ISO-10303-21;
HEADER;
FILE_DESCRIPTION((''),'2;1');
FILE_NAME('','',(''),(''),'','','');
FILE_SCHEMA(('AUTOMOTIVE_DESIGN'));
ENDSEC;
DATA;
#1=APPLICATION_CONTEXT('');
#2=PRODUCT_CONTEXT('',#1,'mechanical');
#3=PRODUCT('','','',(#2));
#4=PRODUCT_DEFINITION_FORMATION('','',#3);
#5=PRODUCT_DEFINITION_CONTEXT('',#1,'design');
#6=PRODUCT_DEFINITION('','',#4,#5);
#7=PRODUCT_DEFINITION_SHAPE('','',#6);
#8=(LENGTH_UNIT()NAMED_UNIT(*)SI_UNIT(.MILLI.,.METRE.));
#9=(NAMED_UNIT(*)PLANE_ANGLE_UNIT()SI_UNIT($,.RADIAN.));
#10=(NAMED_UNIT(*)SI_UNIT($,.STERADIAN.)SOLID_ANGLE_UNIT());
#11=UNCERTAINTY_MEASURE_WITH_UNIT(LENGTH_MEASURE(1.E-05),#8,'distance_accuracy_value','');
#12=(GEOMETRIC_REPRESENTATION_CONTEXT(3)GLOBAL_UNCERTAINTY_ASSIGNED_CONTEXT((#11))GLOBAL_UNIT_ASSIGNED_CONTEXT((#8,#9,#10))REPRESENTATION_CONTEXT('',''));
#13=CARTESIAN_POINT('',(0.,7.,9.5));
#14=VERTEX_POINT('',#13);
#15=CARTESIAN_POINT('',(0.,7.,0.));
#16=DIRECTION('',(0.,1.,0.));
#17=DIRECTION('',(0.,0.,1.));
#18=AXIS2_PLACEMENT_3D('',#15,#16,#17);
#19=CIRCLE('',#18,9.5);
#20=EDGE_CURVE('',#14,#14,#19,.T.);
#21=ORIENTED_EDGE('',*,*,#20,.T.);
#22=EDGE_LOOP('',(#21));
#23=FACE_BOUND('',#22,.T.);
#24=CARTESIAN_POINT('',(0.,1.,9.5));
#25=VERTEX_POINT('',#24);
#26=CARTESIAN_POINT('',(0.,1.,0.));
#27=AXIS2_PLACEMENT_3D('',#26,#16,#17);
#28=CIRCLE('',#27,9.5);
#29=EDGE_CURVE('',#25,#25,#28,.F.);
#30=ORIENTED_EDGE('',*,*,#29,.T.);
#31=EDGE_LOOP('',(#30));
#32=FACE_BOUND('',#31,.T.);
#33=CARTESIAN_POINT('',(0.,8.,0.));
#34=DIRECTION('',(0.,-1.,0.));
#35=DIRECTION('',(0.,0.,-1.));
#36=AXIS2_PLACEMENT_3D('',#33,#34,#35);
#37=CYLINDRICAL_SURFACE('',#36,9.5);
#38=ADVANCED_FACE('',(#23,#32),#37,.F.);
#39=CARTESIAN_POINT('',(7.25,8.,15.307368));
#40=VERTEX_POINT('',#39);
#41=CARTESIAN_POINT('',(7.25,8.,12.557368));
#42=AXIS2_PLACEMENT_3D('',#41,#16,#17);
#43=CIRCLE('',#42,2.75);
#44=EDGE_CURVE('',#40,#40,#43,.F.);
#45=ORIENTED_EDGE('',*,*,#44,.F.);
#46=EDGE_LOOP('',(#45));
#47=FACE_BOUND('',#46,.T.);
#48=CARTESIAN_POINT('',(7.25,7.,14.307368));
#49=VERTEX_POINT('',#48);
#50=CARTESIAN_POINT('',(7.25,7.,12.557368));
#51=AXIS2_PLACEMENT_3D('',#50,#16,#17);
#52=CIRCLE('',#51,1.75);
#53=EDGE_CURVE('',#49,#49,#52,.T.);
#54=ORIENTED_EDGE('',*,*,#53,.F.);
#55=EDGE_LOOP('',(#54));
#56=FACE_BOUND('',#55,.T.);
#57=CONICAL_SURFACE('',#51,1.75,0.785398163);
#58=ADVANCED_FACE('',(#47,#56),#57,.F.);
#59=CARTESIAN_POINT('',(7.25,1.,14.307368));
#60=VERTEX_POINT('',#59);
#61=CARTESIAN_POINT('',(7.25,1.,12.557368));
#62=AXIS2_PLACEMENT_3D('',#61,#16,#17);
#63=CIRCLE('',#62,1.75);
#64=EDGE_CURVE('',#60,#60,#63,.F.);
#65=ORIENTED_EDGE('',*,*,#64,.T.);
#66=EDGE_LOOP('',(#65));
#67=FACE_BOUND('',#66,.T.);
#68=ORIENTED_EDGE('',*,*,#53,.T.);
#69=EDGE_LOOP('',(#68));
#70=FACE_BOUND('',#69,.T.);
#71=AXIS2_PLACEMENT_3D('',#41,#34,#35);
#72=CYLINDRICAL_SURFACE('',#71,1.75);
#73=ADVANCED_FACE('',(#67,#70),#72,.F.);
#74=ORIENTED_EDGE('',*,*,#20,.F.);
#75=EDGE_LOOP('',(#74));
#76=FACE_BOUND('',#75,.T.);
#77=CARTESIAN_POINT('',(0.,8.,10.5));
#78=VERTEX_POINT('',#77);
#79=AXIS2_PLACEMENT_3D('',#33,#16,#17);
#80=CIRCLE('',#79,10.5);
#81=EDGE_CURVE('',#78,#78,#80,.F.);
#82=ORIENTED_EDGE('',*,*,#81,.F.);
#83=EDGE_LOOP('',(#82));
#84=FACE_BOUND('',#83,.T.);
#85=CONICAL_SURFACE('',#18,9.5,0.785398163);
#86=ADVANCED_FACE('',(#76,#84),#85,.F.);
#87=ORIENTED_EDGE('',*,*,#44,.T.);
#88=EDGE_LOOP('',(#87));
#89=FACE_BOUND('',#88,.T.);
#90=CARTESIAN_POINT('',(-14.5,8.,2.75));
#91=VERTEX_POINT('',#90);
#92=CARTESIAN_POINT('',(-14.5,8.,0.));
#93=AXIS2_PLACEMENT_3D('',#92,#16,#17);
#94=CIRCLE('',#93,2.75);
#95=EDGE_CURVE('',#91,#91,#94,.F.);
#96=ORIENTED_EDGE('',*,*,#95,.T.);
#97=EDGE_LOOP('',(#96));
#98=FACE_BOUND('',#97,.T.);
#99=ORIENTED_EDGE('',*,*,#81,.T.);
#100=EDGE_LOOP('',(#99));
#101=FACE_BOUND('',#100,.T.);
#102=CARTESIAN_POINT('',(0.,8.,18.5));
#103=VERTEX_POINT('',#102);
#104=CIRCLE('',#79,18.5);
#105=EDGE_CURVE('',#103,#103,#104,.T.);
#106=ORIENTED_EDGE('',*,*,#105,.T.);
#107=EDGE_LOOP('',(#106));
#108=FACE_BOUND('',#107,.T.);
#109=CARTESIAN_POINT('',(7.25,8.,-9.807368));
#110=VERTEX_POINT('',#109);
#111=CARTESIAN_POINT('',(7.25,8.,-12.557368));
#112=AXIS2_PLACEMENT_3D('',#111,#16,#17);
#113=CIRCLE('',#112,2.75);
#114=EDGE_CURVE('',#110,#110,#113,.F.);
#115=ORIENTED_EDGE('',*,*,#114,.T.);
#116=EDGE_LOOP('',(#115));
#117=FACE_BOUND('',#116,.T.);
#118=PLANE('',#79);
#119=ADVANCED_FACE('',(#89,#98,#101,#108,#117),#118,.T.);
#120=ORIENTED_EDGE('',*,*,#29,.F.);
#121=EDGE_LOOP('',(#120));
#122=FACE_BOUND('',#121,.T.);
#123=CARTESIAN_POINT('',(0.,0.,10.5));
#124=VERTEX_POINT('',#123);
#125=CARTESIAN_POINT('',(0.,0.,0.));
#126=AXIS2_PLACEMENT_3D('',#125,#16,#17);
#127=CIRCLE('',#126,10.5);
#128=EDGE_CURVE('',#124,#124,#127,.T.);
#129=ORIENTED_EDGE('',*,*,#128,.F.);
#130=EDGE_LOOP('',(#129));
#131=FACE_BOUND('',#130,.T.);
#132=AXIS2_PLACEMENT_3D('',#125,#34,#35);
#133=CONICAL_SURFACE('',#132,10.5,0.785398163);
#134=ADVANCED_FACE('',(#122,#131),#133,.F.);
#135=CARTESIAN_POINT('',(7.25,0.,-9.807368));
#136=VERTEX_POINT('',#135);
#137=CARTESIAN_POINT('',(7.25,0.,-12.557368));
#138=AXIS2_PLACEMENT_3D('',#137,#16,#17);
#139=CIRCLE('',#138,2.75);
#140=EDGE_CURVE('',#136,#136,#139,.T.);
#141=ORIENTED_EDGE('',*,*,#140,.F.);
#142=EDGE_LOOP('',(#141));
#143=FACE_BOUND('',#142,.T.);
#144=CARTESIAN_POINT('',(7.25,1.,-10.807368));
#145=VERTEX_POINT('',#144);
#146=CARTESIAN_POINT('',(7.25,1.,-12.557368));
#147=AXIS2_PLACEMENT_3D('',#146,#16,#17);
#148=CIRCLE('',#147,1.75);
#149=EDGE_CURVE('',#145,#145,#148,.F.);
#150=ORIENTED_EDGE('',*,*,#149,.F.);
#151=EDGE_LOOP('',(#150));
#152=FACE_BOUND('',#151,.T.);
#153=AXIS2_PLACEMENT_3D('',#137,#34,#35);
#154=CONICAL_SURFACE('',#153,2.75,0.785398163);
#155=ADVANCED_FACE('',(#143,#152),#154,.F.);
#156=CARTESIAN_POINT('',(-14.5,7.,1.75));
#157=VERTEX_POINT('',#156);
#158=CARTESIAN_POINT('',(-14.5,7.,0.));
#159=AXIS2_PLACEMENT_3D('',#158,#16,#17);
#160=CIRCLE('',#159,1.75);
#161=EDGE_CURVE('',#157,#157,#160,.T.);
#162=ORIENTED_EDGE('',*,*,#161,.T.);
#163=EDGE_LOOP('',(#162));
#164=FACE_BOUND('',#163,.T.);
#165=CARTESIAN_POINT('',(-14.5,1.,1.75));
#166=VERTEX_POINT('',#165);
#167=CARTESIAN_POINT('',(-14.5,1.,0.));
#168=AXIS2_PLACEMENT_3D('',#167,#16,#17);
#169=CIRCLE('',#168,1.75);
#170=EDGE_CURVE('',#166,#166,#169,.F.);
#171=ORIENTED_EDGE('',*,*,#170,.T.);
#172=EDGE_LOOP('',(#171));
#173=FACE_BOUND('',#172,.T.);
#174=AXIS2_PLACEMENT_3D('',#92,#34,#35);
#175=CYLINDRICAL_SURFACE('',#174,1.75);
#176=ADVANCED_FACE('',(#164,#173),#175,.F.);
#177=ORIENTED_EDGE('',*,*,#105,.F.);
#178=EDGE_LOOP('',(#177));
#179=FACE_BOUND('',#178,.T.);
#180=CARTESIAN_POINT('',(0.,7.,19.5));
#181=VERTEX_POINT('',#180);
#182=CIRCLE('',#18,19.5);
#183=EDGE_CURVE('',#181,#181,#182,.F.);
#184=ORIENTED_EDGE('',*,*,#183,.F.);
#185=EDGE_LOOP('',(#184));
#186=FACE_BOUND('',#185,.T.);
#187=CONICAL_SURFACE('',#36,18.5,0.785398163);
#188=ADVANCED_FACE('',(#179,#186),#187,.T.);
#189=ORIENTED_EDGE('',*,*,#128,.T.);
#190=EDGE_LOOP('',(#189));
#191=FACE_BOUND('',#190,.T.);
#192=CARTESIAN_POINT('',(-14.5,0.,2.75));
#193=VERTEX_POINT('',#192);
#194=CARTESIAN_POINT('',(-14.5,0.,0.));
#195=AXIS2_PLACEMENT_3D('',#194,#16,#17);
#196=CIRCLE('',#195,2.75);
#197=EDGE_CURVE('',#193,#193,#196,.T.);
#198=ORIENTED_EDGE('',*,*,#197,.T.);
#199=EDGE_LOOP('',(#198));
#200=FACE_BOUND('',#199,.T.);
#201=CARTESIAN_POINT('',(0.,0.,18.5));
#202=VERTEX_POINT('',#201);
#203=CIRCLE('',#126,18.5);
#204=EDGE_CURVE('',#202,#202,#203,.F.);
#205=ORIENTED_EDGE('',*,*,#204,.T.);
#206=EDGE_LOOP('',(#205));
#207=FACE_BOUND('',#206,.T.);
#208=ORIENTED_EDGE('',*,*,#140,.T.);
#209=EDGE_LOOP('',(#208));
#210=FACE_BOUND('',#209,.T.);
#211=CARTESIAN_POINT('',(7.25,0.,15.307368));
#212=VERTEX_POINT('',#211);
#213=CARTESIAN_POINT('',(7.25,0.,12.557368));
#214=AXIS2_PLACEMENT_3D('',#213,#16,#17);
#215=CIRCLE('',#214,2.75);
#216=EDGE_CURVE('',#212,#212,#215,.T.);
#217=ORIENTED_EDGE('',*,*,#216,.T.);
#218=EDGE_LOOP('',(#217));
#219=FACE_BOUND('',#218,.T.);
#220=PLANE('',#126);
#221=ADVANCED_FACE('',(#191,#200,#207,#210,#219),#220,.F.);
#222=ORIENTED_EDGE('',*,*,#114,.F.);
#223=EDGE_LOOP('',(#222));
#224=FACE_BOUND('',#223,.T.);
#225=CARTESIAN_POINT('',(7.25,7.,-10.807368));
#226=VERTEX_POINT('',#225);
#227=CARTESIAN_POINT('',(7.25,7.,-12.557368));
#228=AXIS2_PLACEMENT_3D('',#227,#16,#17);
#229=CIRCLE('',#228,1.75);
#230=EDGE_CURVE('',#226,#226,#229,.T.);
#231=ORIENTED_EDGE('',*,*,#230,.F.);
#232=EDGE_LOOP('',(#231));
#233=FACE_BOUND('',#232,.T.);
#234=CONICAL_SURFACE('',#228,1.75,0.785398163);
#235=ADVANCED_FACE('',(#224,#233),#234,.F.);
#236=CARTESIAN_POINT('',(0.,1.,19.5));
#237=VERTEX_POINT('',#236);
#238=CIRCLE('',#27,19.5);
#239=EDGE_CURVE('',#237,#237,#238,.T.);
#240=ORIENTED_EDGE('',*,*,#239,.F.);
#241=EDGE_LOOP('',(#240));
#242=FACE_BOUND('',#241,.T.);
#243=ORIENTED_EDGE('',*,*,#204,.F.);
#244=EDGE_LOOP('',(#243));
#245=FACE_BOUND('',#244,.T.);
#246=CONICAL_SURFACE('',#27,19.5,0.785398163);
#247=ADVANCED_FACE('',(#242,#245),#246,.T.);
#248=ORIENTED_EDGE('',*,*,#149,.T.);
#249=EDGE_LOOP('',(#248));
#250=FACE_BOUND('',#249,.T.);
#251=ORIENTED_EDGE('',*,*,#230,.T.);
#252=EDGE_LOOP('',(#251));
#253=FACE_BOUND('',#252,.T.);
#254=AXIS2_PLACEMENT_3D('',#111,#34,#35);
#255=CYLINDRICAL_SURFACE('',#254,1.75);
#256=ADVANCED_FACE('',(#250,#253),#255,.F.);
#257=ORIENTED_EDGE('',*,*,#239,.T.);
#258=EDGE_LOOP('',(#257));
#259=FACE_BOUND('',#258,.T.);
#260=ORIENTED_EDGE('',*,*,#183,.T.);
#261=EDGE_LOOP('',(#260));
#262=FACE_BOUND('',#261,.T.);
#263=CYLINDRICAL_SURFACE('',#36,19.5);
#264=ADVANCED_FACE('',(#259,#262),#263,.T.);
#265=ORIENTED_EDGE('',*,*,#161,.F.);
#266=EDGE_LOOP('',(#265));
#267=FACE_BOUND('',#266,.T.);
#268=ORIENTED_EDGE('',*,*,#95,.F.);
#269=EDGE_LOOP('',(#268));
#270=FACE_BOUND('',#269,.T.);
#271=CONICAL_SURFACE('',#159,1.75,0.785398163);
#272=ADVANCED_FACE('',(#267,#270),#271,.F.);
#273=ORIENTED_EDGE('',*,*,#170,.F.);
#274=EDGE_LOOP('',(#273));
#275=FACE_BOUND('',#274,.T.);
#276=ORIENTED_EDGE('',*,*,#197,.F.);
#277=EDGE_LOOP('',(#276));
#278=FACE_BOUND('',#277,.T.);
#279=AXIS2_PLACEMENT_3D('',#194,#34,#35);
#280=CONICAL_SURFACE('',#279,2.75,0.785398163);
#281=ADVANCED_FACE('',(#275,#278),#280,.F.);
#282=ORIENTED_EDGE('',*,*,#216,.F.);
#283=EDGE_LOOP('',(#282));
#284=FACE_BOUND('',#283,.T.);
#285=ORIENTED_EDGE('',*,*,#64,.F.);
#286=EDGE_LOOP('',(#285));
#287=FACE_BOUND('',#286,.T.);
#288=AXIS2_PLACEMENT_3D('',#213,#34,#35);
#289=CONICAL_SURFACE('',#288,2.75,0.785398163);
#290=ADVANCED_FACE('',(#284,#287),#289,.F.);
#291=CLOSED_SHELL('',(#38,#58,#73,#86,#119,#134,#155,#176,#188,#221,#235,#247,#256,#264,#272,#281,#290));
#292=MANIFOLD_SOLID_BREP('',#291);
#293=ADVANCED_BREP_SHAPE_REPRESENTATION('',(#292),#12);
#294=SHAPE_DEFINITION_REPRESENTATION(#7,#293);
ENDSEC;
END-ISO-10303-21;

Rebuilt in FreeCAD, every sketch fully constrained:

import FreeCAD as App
import Part
import Sketcher
from FreeCAD import Vector


def edges_at(feature, points):
    """Names of the edges that pass closest to the given points."""
    edges = feature.Shape.Edges
    near = lambda p: min(range(len(edges)), key=lambda i: edges[i].distToShape(Part.Vertex(*p))[0])
    return sorted({f"Edge{near(p) + 1}" for p in points})

doc = App.newDocument("Part")
params = doc.addObject("Spreadsheet::Sheet", "Params")
for row, (alias, value) in enumerate([
    ("sketch1_diameter", "39 mm"),
    ("sketch1_diameter2", "19 mm"),
    ("sketch1_diameter3", "3.5 mm"),
    ("pad1_length", "8 mm"),
    ("chamfer_size", "1 mm"),
], start=1):
    params.set(f"A{row}", alias)
    params.set(f"B{row}", "=" + value)
    params.setAlias(f"B{row}", alias)

body = doc.addObject("PartDesign::Body", "Body")

sketch1 = body.newObject("Sketcher::SketchObject", "Sketch")
sketch1.AttachmentSupport = (doc.getObject("XZ_Plane"), [""])
sketch1.MapMode = "FlatFace"
sketch1.addGeometry(Part.Circle(Vector(0, 0, 0), Vector(0, 0, 1), 19.5), False)
sketch1.addGeometry(Part.Circle(Vector(-14.5, 0, 0), Vector(0, 0, 1), 1.75), False)
sketch1.addGeometry(Part.Circle(Vector(7.25, -12.557368, 0), Vector(0, 0, 1), 1.75), False)
sketch1.addGeometry(Part.Circle(Vector(0, 0, 0), Vector(0, 0, 1), 9.5), False)
sketch1.addGeometry(Part.Circle(Vector(7.25, 12.557368, 0), Vector(0, 0, 1), 1.75), False)
sketch1.addConstraint(Sketcher.Constraint("Coincident", 0, 3, -1, 1))
sketch1.addConstraint(Sketcher.Constraint("Coincident", 3, 3, -1, 1))
sketch1.addConstraint(Sketcher.Constraint("Equal", 1, 2))
sketch1.addConstraint(Sketcher.Constraint("Equal", 2, 4))
sketch1.addConstraint(Sketcher.Constraint("Symmetric", 2, 3, 4, 3, -1))
sketch1.addConstraint(Sketcher.Constraint("PointOnObject", 1, 3, -1))
sketch1.addConstraint(Sketcher.Constraint("Diameter", 0, 39.0))
sketch1.addConstraint(Sketcher.Constraint("Diameter", 3, 19.0))
sketch1.addConstraint(Sketcher.Constraint("Diameter", 1, 3.5))
sketch1.addConstraint(Sketcher.Constraint("DistanceX", 1, 3, -1, 1, 14.5))
sketch1.addConstraint(Sketcher.Constraint("DistanceX", -1, 1, 2, 3, 7.25))
sketch1.addConstraint(Sketcher.Constraint("DistanceY", 2, 3, -1, 1, 12.557368))
sketch1.setExpression("Constraints[6]", "Params.sketch1_diameter")
sketch1.setExpression("Constraints[7]", "Params.sketch1_diameter2")
sketch1.setExpression("Constraints[8]", "Params.sketch1_diameter3")
pad1 = body.newObject("PartDesign::Pad", "Pad")
pad1.Profile = sketch1
pad1.setExpression("Length", "Params.pad1_length")
pad1.Reversed = True
doc.recompute()

chamfer = body.newObject("PartDesign::Chamfer", "Chamfer")
chamfer.Base = (pad1, edges_at(pad1, [
    (7.25, 0, -14.307),
    (7.25, 8, -14.307),
    (7.25, 0, 10.807),
    (7.25, 8, 10.807),
    (0, 0, -19.5),
    (0, 8, -19.5),
    (0, 0, -9.5),
    (0, 8, -9.5),
    (-14.5, 0, -1.75),
    (-14.5, 8, -1.75),
]))
chamfer.setExpression("Size", "Params.chamfer_size")

doc.recompute()
